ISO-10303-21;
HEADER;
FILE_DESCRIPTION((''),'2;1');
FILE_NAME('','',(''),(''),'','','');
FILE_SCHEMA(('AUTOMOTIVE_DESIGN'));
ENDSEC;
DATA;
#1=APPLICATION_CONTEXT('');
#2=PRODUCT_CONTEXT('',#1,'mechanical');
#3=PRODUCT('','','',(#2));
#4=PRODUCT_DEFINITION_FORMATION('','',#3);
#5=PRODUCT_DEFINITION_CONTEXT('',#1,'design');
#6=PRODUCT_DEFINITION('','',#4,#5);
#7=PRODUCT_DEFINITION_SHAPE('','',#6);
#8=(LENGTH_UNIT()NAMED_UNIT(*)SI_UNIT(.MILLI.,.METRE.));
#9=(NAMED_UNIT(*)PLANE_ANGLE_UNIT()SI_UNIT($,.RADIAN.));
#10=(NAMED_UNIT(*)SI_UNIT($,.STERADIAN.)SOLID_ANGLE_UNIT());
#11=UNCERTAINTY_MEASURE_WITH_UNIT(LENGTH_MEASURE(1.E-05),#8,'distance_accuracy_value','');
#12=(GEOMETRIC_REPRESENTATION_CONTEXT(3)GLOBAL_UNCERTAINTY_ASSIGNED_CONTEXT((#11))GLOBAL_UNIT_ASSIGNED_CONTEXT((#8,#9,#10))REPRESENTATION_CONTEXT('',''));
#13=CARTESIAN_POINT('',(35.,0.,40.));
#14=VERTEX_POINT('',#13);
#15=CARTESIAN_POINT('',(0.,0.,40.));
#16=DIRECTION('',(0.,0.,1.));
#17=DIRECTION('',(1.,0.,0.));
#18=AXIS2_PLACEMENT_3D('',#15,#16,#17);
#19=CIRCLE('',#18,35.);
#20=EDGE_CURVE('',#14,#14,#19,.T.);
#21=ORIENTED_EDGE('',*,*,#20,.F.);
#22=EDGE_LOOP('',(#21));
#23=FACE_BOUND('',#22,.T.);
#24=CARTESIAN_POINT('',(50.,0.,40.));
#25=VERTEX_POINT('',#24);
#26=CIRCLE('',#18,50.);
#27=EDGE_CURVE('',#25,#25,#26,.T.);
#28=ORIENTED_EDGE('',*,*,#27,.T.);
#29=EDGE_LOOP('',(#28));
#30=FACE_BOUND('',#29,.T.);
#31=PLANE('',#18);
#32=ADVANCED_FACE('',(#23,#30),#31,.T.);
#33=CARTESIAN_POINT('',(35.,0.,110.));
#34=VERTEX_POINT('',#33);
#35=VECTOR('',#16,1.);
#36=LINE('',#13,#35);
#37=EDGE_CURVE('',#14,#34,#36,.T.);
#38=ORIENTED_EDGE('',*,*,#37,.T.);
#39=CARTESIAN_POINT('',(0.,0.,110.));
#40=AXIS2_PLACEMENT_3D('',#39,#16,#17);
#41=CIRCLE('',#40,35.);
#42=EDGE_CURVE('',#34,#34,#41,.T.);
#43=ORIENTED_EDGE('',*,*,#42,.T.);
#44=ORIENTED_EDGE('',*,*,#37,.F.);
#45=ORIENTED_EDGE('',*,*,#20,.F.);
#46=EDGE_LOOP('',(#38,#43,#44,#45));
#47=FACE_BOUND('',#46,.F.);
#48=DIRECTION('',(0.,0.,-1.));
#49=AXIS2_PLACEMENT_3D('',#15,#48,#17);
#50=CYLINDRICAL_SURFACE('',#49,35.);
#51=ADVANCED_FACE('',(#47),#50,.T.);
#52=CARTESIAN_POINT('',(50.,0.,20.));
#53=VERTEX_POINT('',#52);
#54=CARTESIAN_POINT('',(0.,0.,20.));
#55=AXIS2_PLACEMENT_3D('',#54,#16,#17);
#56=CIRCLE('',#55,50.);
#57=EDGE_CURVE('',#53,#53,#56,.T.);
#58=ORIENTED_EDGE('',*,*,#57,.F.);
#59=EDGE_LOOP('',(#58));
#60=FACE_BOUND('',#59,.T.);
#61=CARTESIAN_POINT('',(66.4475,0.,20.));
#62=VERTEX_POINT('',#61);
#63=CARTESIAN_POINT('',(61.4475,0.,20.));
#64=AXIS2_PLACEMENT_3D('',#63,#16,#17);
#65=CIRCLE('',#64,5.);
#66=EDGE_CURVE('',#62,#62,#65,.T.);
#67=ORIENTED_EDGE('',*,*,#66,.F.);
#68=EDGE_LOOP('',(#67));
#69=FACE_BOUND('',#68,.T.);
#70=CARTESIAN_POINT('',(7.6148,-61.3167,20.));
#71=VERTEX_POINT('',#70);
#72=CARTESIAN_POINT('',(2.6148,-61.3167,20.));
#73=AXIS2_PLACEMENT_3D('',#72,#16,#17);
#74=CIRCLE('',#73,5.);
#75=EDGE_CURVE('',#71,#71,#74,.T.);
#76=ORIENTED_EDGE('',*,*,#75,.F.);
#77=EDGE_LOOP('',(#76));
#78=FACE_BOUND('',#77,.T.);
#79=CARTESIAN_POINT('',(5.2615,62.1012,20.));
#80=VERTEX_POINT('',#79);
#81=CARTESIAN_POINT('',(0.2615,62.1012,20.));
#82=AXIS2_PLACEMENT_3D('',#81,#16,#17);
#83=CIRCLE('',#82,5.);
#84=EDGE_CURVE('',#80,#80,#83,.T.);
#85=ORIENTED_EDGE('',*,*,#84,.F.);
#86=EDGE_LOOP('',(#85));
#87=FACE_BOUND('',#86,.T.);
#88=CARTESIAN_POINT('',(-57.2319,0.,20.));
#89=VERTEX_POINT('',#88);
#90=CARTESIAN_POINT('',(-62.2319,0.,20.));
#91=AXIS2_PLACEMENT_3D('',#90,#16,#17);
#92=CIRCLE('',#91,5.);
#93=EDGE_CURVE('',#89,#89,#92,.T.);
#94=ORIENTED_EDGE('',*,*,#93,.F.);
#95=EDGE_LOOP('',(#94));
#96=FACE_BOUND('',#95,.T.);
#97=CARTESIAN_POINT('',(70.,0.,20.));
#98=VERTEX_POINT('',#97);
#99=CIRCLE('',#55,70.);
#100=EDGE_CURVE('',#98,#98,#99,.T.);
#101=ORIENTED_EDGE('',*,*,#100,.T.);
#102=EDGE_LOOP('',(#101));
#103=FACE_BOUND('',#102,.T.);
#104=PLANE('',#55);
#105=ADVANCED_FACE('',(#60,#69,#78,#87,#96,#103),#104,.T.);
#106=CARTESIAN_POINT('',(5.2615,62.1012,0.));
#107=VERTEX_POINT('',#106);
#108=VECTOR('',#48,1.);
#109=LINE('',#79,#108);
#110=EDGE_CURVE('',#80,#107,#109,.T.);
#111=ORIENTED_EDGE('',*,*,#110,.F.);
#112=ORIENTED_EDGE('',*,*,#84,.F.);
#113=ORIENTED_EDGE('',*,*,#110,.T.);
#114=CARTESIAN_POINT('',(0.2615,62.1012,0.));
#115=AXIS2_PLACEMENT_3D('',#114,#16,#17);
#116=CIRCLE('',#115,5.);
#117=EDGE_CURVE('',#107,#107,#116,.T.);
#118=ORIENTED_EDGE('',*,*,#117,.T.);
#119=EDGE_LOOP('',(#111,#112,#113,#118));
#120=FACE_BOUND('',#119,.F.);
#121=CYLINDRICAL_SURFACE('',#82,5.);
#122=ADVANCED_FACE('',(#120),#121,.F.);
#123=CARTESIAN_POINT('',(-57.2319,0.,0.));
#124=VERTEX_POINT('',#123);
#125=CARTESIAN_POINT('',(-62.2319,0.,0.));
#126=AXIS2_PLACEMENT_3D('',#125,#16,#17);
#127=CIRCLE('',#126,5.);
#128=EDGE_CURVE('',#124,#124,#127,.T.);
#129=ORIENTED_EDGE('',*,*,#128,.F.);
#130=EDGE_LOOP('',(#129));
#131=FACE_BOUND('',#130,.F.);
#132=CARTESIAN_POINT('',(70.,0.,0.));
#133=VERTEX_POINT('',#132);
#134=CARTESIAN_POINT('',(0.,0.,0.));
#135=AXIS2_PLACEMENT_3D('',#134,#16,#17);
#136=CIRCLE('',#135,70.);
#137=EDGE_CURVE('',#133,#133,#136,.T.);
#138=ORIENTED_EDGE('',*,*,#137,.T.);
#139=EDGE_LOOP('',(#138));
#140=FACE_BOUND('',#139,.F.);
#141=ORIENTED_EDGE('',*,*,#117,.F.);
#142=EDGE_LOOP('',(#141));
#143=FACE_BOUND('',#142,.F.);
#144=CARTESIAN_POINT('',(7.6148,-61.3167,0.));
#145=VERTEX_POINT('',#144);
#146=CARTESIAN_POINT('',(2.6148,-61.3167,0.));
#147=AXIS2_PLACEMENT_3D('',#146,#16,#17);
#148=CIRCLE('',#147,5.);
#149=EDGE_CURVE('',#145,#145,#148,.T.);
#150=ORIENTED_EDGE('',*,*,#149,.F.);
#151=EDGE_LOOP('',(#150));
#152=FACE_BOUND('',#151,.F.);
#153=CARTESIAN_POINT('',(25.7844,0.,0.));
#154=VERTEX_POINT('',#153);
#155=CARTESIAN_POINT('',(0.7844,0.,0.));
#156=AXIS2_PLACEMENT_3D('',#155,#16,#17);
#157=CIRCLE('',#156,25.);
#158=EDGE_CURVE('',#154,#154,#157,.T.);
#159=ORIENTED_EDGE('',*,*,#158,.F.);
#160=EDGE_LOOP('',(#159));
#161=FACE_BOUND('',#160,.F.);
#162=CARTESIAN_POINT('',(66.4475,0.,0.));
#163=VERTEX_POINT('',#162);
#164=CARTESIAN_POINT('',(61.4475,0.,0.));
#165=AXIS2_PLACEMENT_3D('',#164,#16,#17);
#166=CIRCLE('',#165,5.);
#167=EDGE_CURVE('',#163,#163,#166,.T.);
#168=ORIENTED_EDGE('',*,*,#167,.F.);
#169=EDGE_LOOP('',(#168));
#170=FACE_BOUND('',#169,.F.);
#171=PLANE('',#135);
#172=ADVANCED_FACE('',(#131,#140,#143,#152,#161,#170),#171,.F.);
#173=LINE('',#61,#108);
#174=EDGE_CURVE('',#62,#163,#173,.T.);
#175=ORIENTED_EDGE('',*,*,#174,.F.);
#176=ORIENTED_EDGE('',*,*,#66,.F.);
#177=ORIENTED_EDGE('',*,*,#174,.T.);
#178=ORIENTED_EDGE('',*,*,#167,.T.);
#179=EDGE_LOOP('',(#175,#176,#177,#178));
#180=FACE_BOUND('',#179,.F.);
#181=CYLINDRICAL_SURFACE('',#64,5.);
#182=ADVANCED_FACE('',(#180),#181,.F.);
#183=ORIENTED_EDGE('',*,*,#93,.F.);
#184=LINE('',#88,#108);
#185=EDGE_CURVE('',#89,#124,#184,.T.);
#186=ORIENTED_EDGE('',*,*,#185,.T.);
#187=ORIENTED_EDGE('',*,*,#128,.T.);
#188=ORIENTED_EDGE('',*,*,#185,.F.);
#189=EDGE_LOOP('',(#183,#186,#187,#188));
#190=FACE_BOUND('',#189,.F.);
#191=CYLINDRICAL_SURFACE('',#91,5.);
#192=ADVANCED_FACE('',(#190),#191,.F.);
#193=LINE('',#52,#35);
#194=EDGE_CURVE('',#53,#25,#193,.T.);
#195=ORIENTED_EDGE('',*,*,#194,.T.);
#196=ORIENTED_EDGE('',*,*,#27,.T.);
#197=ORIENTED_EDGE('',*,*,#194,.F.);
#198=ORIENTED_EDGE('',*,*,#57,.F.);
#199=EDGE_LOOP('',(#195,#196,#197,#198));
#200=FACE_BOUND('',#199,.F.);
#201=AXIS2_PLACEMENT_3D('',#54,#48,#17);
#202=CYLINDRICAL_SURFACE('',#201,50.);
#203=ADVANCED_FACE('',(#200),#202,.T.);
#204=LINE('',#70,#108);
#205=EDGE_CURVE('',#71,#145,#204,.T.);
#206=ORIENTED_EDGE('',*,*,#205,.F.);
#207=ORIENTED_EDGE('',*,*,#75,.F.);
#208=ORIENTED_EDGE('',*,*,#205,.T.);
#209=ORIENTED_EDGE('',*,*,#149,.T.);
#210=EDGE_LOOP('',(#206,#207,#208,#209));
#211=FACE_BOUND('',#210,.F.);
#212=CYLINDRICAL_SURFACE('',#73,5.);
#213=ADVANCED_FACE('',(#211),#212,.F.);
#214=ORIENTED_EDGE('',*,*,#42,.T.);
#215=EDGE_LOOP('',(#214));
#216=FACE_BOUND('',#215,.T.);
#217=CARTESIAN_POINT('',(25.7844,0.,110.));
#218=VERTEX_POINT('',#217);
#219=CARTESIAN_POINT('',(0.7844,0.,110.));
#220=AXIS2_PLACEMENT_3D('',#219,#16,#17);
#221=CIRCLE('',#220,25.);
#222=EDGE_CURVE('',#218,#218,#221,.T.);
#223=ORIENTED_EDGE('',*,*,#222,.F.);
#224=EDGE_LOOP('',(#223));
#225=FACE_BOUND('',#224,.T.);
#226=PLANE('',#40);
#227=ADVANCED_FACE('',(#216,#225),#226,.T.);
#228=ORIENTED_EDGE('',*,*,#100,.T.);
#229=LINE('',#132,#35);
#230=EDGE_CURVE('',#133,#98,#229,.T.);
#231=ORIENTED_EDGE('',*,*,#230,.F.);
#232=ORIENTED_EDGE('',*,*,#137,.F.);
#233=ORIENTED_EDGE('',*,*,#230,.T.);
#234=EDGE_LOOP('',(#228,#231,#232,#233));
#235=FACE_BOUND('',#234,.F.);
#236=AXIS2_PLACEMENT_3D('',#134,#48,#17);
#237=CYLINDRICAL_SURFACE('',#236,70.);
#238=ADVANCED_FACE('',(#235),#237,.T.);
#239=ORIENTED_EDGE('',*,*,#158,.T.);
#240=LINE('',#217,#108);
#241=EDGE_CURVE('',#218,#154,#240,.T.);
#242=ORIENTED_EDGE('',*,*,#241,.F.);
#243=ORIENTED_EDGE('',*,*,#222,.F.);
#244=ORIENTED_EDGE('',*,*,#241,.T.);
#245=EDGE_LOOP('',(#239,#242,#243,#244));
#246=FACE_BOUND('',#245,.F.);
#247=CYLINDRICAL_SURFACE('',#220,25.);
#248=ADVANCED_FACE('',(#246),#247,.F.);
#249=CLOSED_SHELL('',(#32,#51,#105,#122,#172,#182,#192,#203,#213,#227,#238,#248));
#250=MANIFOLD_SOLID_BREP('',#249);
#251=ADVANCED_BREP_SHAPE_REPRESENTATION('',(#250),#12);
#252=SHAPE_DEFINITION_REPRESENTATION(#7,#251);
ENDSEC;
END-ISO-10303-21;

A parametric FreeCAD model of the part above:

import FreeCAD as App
import Part
import Sketcher

V = App.Vector
Q = App.Units.Quantity

doc = App.newDocument("Part")
params = doc.addObject("Spreadsheet::Sheet", "Params")
for row, (alias, value) in enumerate([
    ("pad1_length", "0.7874016 in"),
    ("sketch2_diameter", "3.937 in"),
    ("pad2_length", "0.7874016 in"),
    ("pad3_length", "2.7559055 in"),
    ("pocket1_length", "8.5809055 in"),
    ("pocket2_length", "134.0931 mm"),
], start=1):
    params.set(f"A{row}", alias)
    params.set(f"B{row}", "=" + value)
    params.setAlias(f"B{row}", alias)

body = doc.addObject("PartDesign::Body", "Body")

# Sketch on XY plane
sketch1 = body.newObject("Sketcher::SketchObject", "Sketch")
sketch1.AttachmentSupport = (doc.getObject("XY_Plane"), [""])
sketch1.MapMode = "FlatFace"
sketch1.addGeometry(Part.Circle(V(0, 0, 0), V(0, 0, 1), 70), False)
sketch1.addConstraint(Sketcher.Constraint("Coincident", 0, 3, -1, 1))
sketch1.addConstraint(Sketcher.Constraint("Diameter", 0, Q("5.5118 in")))
pad1 = body.newObject("PartDesign::Pad", "Pad")
pad1.Profile = sketch1
pad1.setExpression("Length", "Params.pad1_length")

# Sketch on XY plane
sketch2 = body.newObject("Sketcher::SketchObject", "Sketch001")
sketch2.AttachmentSupport = (doc.getObject("XY_Plane"), [""])
sketch2.MapMode = "FlatFace"
sketch2.AttachmentOffset = App.Placement(V(0, 0, 0.7874016 * 25.4), App.Rotation())
sketch2.addGeometry(Part.Circle(V(0, 0, 0), V(0, 0, 1), 50), False)
sketch2.addConstraint(Sketcher.Constraint("Coincident", 0, 3, -1, 1))
sketch2.addConstraint(Sketcher.Constraint("Diameter", 0, Q("3.937 in")))
sketch2.setExpression("Constraints[1]", "Params.sketch2_diameter")
pad2 = body.newObject("PartDesign::Pad", "Pad001")
pad2.Profile = sketch2
pad2.setExpression("Length", "Params.pad2_length")

# Sketch on XY plane
sketch3 = body.newObject("Sketcher::SketchObject", "Sketch002")
sketch3.AttachmentSupport = (doc.getObject("XY_Plane"), [""])
sketch3.MapMode = "FlatFace"
sketch3.AttachmentOffset = App.Placement(V(0, 0, 1.5748031 * 25.4), App.Rotation())
sketch3.addGeometry(Part.Circle(V(0, 0, 0), V(0, 0, 1), 35), False)
sketch3.addConstraint(Sketcher.Constraint("Coincident", 0, 3, -1, 1))
sketch3.addConstraint(Sketcher.Constraint("Diameter", 0, Q("2.7559 in")))
pad3 = body.newObject("PartDesign::Pad", "Pad002")
pad3.Profile = sketch3
pad3.setExpression("Length", "Params.pad3_length")

# Sketch on XY plane
sketch4 = body.newObject("Sketcher::SketchObject", "Sketch003")
sketch4.AttachmentSupport = (doc.getObject("XY_Plane"), [""])
sketch4.MapMode = "FlatFace"
sketch4.AttachmentOffset = App.Placement(V(0, 0, 4.3307087 * 25.4), App.Rotation())
sketch4.addGeometry(Part.Circle(V(0.7844, 0, 0), V(0, 0, 1), 25), False)
sketch4.addConstraint(Sketcher.Constraint("PointOnObject", 0, 3, -1))
sketch4.addConstraint(Sketcher.Constraint("Diameter", 0, Q("1.9685 in")))
sketch4.addConstraint(Sketcher.Constraint("DistanceX", -1, 1, 0, 3, 0.7844))
pocket1 = body.newObject("PartDesign::Pocket", "Pocket")
pocket1.Profile = sketch4
pocket1.setExpression("Length", "Params.pocket1_length")

# Sketch on XY plane
sketch5 = body.newObject("Sketcher::SketchObject", "Sketch004")
sketch5.AttachmentSupport = (doc.getObject("XY_Plane"), [""])
sketch5.MapMode = "FlatFace"
sketch5.AttachmentOffset = App.Placement(V(0, 0, 0.7874016 * 25.4), App.Rotation())
sketch5.addGeometry(Part.Circle(V(-62.2319, 0, 0), V(0, 0, 1), 5), False)
sketch5.addGeometry(Part.Circle(V(61.4475, 0, 0), V(0, 0, 1), 5), False)
sketch5.addGeometry(Part.Circle(V(2.6148, -61.3167, 0), V(0, 0, 1), 5), False)
sketch5.addGeometry(Part.Circle(V(0.2615, 62.1012, 0), V(0, 0, 1), 5), False)
sketch5.addConstraint(Sketcher.Constraint("Equal", 0, 1))
sketch5.addConstraint(Sketcher.Constraint("Equal", 1, 2))
sketch5.addConstraint(Sketcher.Constraint("Equal", 2, 3))
sketch5.addConstraint(Sketcher.Constraint("PointOnObject", 0, 3, -1))
sketch5.addConstraint(Sketcher.Constraint("PointOnObject", 1, 3, -1))
sketch5.addConstraint(Sketcher.Constraint("Diameter", 0, Q("0.3937 in")))
sketch5.addConstraint(Sketcher.Constraint("DistanceX", -1, 1, 1, 3, Q("2.4192 in")))
sketch5.addConstraint(Sketcher.Constraint("DistanceX", -1, 1, 3, 3, Q("0.0103 in")))
sketch5.addConstraint(Sketcher.Constraint("DistanceX", 0, 3, -1, 1, 62.232))
sketch5.addConstraint(Sketcher.Constraint("DistanceX", -1, 1, 2, 3, 2.6148))
sketch5.addConstraint(Sketcher.Constraint("DistanceY", 2, 3, -1, 1, 61.3167))
sketch5.addConstraint(Sketcher.Constraint("DistanceY", -1, 1, 3, 3, 62.1012))
pocket2 = body.newObject("PartDesign::Pocket", "Pocket001")
pocket2.Profile = sketch5
pocket2.setExpression("Length", "Params.pocket2_length")

doc.recompute()
